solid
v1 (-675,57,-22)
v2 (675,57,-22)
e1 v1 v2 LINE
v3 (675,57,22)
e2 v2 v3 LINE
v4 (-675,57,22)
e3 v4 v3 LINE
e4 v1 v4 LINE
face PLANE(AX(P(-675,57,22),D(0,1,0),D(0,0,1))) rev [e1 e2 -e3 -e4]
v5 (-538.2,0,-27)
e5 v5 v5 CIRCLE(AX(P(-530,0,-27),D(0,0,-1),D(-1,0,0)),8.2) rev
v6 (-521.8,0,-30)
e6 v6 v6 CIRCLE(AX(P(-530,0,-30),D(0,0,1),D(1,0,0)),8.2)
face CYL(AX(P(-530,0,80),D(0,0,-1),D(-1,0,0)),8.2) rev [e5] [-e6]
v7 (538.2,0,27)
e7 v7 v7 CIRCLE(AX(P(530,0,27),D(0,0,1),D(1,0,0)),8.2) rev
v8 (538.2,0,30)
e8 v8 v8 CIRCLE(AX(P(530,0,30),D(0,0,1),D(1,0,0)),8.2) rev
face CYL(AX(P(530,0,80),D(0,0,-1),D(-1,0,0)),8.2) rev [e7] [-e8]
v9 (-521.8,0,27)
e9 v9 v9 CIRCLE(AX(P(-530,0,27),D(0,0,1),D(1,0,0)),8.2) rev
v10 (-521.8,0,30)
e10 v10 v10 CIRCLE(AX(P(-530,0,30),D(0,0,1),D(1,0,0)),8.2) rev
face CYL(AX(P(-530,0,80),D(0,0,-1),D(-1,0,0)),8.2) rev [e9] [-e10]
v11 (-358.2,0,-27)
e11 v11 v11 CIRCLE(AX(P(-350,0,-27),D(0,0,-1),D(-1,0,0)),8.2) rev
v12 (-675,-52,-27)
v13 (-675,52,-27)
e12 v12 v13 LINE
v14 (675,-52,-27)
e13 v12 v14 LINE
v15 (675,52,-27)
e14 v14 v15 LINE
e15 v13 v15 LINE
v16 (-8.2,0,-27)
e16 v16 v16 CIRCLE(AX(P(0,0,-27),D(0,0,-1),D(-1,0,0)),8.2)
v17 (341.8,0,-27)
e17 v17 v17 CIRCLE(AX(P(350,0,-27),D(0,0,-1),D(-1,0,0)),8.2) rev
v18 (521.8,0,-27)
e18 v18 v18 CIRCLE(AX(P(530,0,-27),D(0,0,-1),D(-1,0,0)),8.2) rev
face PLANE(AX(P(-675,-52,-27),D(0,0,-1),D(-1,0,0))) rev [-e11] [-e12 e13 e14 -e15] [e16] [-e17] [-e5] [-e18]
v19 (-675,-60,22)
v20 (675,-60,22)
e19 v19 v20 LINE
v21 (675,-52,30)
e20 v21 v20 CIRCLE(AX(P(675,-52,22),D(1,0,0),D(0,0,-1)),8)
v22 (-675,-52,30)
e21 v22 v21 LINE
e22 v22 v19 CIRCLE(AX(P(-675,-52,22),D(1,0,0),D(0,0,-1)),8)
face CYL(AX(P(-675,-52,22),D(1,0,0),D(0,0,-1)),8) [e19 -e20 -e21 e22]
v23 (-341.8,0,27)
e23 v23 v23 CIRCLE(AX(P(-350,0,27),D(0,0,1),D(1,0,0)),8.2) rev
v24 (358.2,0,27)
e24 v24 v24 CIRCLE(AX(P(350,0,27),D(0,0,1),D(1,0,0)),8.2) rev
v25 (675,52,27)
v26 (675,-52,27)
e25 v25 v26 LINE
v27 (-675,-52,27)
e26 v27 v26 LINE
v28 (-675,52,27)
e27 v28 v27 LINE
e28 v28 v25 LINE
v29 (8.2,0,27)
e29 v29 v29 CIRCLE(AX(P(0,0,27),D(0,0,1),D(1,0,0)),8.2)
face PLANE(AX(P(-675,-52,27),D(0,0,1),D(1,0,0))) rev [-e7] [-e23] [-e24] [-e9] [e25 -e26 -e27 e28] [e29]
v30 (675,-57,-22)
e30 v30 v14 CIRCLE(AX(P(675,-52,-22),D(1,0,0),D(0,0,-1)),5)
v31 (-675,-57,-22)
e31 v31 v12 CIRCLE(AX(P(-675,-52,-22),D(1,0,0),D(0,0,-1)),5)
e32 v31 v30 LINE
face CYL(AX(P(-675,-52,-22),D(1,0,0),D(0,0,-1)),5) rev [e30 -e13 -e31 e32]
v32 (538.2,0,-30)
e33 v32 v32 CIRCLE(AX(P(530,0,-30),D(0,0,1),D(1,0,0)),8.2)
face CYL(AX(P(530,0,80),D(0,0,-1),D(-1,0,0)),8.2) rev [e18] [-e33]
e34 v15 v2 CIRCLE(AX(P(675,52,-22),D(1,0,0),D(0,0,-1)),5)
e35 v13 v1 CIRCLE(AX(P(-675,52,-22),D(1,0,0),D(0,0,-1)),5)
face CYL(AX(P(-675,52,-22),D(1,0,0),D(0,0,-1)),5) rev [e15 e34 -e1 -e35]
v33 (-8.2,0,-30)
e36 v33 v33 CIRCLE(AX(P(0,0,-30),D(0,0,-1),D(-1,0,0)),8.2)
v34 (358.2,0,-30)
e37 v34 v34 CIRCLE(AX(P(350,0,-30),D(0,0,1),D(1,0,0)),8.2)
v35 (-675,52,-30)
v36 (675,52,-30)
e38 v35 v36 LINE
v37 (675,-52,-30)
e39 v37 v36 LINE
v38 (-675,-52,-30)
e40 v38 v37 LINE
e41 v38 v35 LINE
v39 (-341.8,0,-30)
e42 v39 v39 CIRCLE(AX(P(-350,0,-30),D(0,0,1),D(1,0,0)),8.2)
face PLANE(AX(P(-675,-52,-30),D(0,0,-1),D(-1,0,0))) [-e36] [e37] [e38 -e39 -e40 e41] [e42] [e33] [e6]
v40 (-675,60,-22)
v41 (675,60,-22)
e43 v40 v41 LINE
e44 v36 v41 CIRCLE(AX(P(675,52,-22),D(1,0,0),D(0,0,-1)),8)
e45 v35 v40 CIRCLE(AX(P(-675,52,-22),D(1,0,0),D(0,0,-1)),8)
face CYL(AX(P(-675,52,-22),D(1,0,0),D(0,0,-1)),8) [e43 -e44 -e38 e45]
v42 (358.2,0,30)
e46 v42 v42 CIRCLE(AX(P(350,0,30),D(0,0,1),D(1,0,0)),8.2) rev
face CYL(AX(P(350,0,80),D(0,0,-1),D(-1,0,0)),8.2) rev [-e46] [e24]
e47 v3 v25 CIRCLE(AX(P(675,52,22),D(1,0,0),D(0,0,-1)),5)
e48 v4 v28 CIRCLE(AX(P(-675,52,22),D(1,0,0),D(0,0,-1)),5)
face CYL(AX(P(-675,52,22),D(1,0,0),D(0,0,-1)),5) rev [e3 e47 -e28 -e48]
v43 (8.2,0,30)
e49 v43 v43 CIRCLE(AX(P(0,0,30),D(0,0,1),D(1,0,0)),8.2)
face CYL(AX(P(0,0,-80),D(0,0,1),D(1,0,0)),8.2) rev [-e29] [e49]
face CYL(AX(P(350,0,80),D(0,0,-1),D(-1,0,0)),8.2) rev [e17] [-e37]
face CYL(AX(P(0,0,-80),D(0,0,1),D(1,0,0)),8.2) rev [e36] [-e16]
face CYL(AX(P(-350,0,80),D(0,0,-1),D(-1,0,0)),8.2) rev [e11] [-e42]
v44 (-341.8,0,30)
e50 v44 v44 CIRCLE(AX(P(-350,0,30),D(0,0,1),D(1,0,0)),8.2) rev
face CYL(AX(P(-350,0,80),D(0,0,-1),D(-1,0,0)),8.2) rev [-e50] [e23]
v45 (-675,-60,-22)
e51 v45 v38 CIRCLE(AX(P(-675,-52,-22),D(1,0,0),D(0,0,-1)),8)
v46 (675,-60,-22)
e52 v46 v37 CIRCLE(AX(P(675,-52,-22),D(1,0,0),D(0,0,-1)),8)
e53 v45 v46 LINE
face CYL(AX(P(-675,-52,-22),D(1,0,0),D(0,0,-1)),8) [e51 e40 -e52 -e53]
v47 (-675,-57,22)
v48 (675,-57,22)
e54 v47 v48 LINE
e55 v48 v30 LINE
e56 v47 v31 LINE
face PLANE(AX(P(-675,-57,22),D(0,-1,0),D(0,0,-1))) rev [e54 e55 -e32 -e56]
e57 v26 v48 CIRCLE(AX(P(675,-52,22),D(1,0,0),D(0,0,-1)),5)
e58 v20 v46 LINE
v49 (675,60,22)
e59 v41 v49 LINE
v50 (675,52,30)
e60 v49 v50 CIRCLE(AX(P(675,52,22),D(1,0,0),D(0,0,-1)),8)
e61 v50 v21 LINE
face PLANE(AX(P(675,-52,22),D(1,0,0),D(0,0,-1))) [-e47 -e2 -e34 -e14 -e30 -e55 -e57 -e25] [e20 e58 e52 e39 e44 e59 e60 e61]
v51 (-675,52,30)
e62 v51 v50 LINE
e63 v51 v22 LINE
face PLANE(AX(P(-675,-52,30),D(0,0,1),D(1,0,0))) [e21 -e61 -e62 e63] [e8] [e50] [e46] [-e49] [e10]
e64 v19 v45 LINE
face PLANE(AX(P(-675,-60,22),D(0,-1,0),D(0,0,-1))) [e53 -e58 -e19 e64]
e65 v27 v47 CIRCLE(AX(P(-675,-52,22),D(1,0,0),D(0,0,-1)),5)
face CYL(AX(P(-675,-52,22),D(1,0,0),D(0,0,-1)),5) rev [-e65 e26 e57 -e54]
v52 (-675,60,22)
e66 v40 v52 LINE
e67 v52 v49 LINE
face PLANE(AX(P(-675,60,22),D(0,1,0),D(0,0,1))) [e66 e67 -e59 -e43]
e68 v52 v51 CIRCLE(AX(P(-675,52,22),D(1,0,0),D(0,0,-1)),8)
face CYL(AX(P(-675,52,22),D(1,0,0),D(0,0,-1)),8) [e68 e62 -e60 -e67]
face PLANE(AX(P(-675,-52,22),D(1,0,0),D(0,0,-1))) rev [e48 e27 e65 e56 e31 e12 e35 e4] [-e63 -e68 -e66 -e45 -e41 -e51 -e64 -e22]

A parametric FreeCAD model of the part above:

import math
import FreeCAD as App
import Part
import Sketcher

doc = App.newDocument("Part")
body = doc.addObject("PartDesign::Body", "Body")

# Sketch on YZ plane
sketch1 = body.newObject("Sketcher::SketchObject", "Sketch")
sketch1.AttachmentSupport = (doc.getObject("YZ_Plane"), [""])
sketch1.MapMode = "FlatFace"
sketch1.addGeometry([
    Part.LineSegment(App.Vector(52, 30, 0), App.Vector(-52, 30, 0)),  # 0
    Part.ArcOfCircle(Part.Circle(App.Vector(-52, 22, 0), App.Vector(0, 0, 1), 8), math.radians(90), math.radians(180)),  # 1
    Part.LineSegment(App.Vector(-60, 22, 0), App.Vector(-60, -22, 0)),  # 2
    Part.ArcOfCircle(Part.Circle(App.Vector(-52, -22, 0), App.Vector(0, 0, 1), 8), math.radians(-180), math.radians(-90)),  # 3
    Part.LineSegment(App.Vector(-52, -30, 0), App.Vector(52, -30, 0)),  # 4
    Part.ArcOfCircle(Part.Circle(App.Vector(52, -22, 0), App.Vector(0, 0, 1), 8), math.radians(-90), math.radians(0)),  # 5
    Part.LineSegment(App.Vector(60, -22, 0), App.Vector(60, 22, 0)),  # 6
    Part.ArcOfCircle(Part.Circle(App.Vector(52, 22, 0), App.Vector(0, 0, 1), 8), math.radians(0), math.radians(90)),  # 7
    Part.LineSegment(App.Vector(-52, 27, 0), App.Vector(52, 27, 0)),  # 8
    Part.ArcOfCircle(Part.Circle(App.Vector(52, 22, 0), App.Vector(0, 0, 1), 5), math.radians(0), math.radians(90)),  # 9
    Part.LineSegment(App.Vector(57, 22, 0), App.Vector(57, -22, 0)),  # 10
    Part.ArcOfCircle(Part.Circle(App.Vector(52, -22, 0), App.Vector(0, 0, 1), 5), math.radians(-90), math.radians(0)),  # 11
    Part.LineSegment(App.Vector(52, -27, 0), App.Vector(-52, -27, 0)),  # 12
    Part.ArcOfCircle(Part.Circle(App.Vector(-52, -22, 0), App.Vector(0, 0, 1), 5), math.radians(180), math.radians(270)),  # 13
    Part.LineSegment(App.Vector(-57, -22, 0), App.Vector(-57, 22, 0)),  # 14
    Part.ArcOfCircle(Part.Circle(App.Vector(-52, 22, 0), App.Vector(0, 0, 1), 5), math.radians(90), math.radians(180)),  # 15
], False)
sketch1.addConstraint([
    Sketcher.Constraint("Tangent", 0, 2, 1, 1),
    Sketcher.Constraint("Tangent", 1, 2, 2, 1),
    Sketcher.Constraint("Tangent", 2, 2, 3, 1),
    Sketcher.Constraint("Tangent", 3, 2, 4, 1),
    Sketcher.Constraint("Tangent", 4, 2, 5, 1),
    Sketcher.Constraint("Tangent", 5, 2, 6, 1),
    Sketcher.Constraint("Tangent", 6, 2, 7, 1),
    Sketcher.Constraint("Tangent", 7, 2, 0, 1),
    Sketcher.Constraint("Tangent", 8, 2, 9, 2),
    Sketcher.Constraint("Tangent", 9, 1, 10, 1),
    Sketcher.Constraint("Tangent", 10, 2, 11, 2),
    Sketcher.Constraint("Tangent", 11, 1, 12, 1),
    Sketcher.Constraint("Tangent", 12, 2, 13, 2),
    Sketcher.Constraint("Tangent", 13, 1, 14, 1),
    Sketcher.Constraint("Tangent", 14, 2, 15, 2),
    Sketcher.Constraint("Tangent", 15, 1, 8, 1),
    Sketcher.Constraint("Horizontal", 0),
    Sketcher.Constraint("Vertical", 2),
    Sketcher.Constraint("Horizontal", 4),
    Sketcher.Constraint("Vertical", 6),
    Sketcher.Constraint("Horizontal", 8),
    Sketcher.Constraint("Vertical", 10),
    Sketcher.Constraint("Horizontal", 12),
    Sketcher.Constraint("Vertical", 14),
    Sketcher.Constraint("Coincident", 9, 3, 7, 3),
    Sketcher.Constraint("Coincident", 11, 3, 5, 3),
    Sketcher.Constraint("Coincident", 13, 3, 3, 3),
    Sketcher.Constraint("Equal", 1, 3),
    Sketcher.Constraint("Equal", 3, 5),
    Sketcher.Constraint("Equal", 5, 7),
    Sketcher.Constraint("Equal", 13, 15),
    Sketcher.Constraint("Symmetric", 1, 3, 5, 3, -1, 1),
    Sketcher.Constraint("Radius", 1, 8.0),
    Sketcher.Constraint("Radius", 9, 5.0),
    Sketcher.Constraint("DistanceX", 0, 2, 0, 1, 104.0),
    Sketcher.Constraint("DistanceY", 2, 2, 2, 1, 44.0),
])
pad1 = body.newObject("PartDesign::Pad", "Pad")
pad1.Profile = sketch1
pad1.Type = "TwoLengths"
pad1.Length = 675
pad1.Length2 = 675

# Sketch on XY plane
sketch2 = body.newObject("Sketcher::SketchObject", "Sketch001")
sketch2.AttachmentSupport = (doc.getObject("XY_Plane"), [""])
sketch2.MapMode = "FlatFace"
sketch2.AttachmentOffset = App.Placement(App.Vector(0, 0, 30), App.Rotation())
sketch2.addGeometry(Part.Circle(App.Vector(0, 0, 0), App.Vector(0, 0, 1), 8.2), False)
sketch2.addConstraint([
    Sketcher.Constraint("Coincident", 0, 3, -1, 1),
    Sketcher.Constraint("Diameter", 0, 16.4),
])
pocket1 = body.newObject("PartDesign::Pocket", "Pocket")
pocket1.Profile = sketch2
pocket1.Length = 110

# Sketch on XY plane
sketch3 = body.newObject("Sketcher::SketchObject", "Sketch002")
sketch3.AttachmentSupport = (doc.getObject("XY_Plane"), [""])
sketch3.MapMode = "FlatFace"
sketch3.AttachmentOffset = App.Placement(App.Vector(0, 0, -30), App.Rotation())
sketch3.addGeometry([
    Part.Circle(App.Vector(350, 0, 0), App.Vector(0, 0, 1), 8.2),
    Part.Circle(App.Vector(530, 0, 0), App.Vector(0, 0, 1), 8.2),
    Part.Circle(App.Vector(-350, 0, 0), App.Vector(0, 0, 1), 8.2),
    Part.Circle(App.Vector(-530, 0, 0), App.Vector(0, 0, 1), 8.2),
], False)
sketch3.addConstraint([
    Sketcher.Constraint("Equal", 0, 1),
    Sketcher.Constraint("Equal", 1, 2),
    Sketcher.Constraint("Equal", 2, 3),
    Sketcher.Constraint("Symmetric", 0, 3, 2, 3, -1, 1),
    Sketcher.Constraint("Symmetric", 1, 3, 3, 3, -1, 1),
    Sketcher.Constraint("PointOnObject", 0, 3, -1),
    Sketcher.Constraint("PointOnObject", 1, 3, -1),
    Sketcher.Constraint("Diameter", 0, 16.4),
    Sketcher.Constraint("DistanceX", -1, 1, 0, 3, 350.0),
    Sketcher.Constraint("DistanceX", -1, 1, 1, 3, 530.0),
])
pocket2 = body.newObject("PartDesign::Pocket", "Pocket001")
pocket2.Profile = sketch3
pocket2.Length = 110
pocket2.Reversed = True

doc.recompute()
